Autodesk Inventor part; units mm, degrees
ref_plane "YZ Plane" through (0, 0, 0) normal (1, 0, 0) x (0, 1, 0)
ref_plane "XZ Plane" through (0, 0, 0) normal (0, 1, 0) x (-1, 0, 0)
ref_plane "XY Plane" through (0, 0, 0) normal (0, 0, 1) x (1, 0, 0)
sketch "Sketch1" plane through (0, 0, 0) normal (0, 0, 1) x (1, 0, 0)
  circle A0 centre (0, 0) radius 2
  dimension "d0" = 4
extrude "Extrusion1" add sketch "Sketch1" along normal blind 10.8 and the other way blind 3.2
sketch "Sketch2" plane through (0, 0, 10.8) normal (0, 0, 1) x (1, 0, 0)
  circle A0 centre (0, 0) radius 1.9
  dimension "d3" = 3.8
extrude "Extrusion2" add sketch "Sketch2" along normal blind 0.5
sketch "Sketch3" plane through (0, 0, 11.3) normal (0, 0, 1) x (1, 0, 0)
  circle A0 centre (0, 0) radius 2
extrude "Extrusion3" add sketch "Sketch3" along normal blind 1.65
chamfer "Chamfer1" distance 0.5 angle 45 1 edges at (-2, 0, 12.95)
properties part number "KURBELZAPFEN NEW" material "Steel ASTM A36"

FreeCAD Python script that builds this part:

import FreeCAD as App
import Part
import Sketcher
from FreeCAD import Vector
Q = App.Units.Quantity


def edges_at(feature, points):
    """Names of the edges that pass closest to the given points."""
    edges = feature.Shape.Edges
    near = lambda p: min(range(len(edges)), key=lambda i: edges[i].distToShape(Part.Vertex(*p))[0])
    return sorted({f"Edge{near(p) + 1}" for p in points})

doc = App.newDocument("Part")
body = doc.addObject("PartDesign::Body", "Body")

# Sketch on XY plane
sketch1 = body.newObject("Sketcher::SketchObject", "Sketch")
sketch1.AttachmentSupport = (doc.getObject("XY_Plane"), [""])
sketch1.MapMode = "FlatFace"
sketch1.addGeometry(Part.Circle(Vector(0, 0, 0), Vector(0, 0, 1), 2), False)
sketch1.addConstraint([
    Sketcher.Constraint("Coincident", 0, 3, -1, 1),
    Sketcher.Constraint("Diameter", 0, Q("4 mm")),
])
pad1 = body.newObject("PartDesign::Pad", "Pad")
pad1.Profile = sketch1
pad1.Type = "TwoLengths"
pad1.Length = 10.8
pad1.Length2 = 3.2

# Sketch on XY plane
sketch2 = body.newObject("Sketcher::SketchObject", "Sketch001")
sketch2.AttachmentSupport = (doc.getObject("XY_Plane"), [""])
sketch2.MapMode = "FlatFace"
sketch2.AttachmentOffset = App.Placement(Vector(0, 0, 10.8), App.Rotation())
sketch2.addGeometry(Part.Circle(Vector(0, 0, 0), Vector(0, 0, 1), 1.9), False)
sketch2.addConstraint([
    Sketcher.Constraint("Coincident", 0, 3, -1, 1),
    Sketcher.Constraint("Diameter", 0, Q("3.8 mm")),
])
pad2 = body.newObject("PartDesign::Pad", "Pad001")
pad2.Profile = sketch2
pad2.Length = 0.5

# Sketch on XY plane
sketch3 = body.newObject("Sketcher::SketchObject", "Sketch002")
sketch3.AttachmentSupport = (doc.getObject("XY_Plane"), [""])
sketch3.MapMode = "FlatFace"
sketch3.AttachmentOffset = App.Placement(Vector(0, 0, 11.3), App.Rotation())
sketch3.addGeometry(Part.Circle(Vector(0, 0, 0), Vector(0, 0, 1), 2), False)
sketch3.addConstraint([
    Sketcher.Constraint("Coincident", 0, 3, -1, 1),
    Sketcher.Constraint("Diameter", 0, Q("4 mm")),
])
pad3 = body.newObject("PartDesign::Pad", "Pad002")
pad3.Profile = sketch3
pad3.Length = 1.65
doc.recompute()

chamfer = body.newObject("PartDesign::Chamfer", "Chamfer")
chamfer.Base = (pad3, edges_at(pad3, [(-2, 0, 12.95)]))
chamfer.Size = 0.5

doc.recompute()
